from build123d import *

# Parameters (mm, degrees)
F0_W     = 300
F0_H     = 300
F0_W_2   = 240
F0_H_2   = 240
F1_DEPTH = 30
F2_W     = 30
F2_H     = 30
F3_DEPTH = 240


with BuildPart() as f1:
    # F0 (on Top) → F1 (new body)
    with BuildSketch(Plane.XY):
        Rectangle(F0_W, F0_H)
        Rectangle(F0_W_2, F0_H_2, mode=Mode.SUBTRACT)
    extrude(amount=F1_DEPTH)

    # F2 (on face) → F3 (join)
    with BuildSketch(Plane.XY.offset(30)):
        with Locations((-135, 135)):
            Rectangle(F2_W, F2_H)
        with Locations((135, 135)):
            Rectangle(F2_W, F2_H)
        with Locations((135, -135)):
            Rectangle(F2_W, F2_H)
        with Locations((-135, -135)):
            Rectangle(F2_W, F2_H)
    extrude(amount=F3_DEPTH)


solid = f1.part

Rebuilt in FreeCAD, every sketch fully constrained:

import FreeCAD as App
import Part
import Sketcher
from FreeCAD import Vector
Q = App.Units.Quantity


def add_polygon(sketch, points):
    """Adds a closed chain of lines whose ends are joined by coincident constraints."""
    first, n = sketch.GeometryCount, len(points)
    for a, b in zip(points, points[1:] + points[:1]):
        sketch.addGeometry(Part.LineSegment(App.Vector(*a, 0), App.Vector(*b, 0)), False)
    for i in range(n):
        sketch.addConstraint(Sketcher.Constraint("Coincident", first + i, 2, first + (i + 1) % n, 1))

doc = App.newDocument("Part")
body = doc.addObject("PartDesign::Body", "Body")

# Sketch on XY plane
sketch1 = doc.addObject("Sketcher::SketchObject", "Sketch")
body.addObject(sketch1)
sketch1.AttachmentSupport = (doc.XY_Plane, [""])
sketch1.MapMode = "FlatFace"
add_polygon(sketch1, [(-150, 150), (-150, -150), (150, -150), (150, 150)])  # lines 0-3
add_polygon(sketch1, [(120, -120), (-120, -120), (-120, 120), (120, 120)])  # lines 4-7
sketch1.addConstraint([
    Sketcher.Constraint("Vertical", 0),
    Sketcher.Constraint("Horizontal", 1),
    Sketcher.Constraint("Vertical", 2),
    Sketcher.Constraint("Horizontal", 3),
    Sketcher.Constraint("Horizontal", 4),
    Sketcher.Constraint("Vertical", 5),
    Sketcher.Constraint("Horizontal", 6),
    Sketcher.Constraint("Vertical", 7),
    Sketcher.Constraint("Symmetric", 0, 2, 2, 2, -1, 1),
    Sketcher.Constraint("Symmetric", 4, 2, 6, 2, -1, 1),
    Sketcher.Constraint("Equal", 3, 0),
    Sketcher.Constraint("Equal", 6, 5),
    Sketcher.Constraint("DistanceX", 1, 1, 1, 2, Q("300 mm")),
    Sketcher.Constraint("DistanceX", 4, 2, 4, 1, Q("240 mm")),
])
pad1 = doc.addObject("PartDesign::Pad", "Pad")
body.addObject(pad1)
pad1.Profile = sketch1
pad1.Length = 30

# Sketch on XY plane
sketch2 = doc.addObject("Sketcher::SketchObject", "Sketch001")
body.addObject(sketch2)
sketch2.AttachmentSupport = (doc.XY_Plane, [""])
sketch2.MapMode = "FlatFace"
sketch2.AttachmentOffset = App.Placement(Vector(0, 0, 30), App.Rotation())
add_polygon(sketch2, [(-150, 150), (-150, 120), (-120, 120), (-120, 150)])  # lines 0-3
add_polygon(sketch2, [(120, 150), (120, 120), (150, 120), (150, 150)])  # lines 4-7
add_polygon(sketch2, [(120, -120), (120, -150), (150, -150), (150, -120)])  # lines 8-11
add_polygon(sketch2, [(-150, -120), (-150, -150), (-120, -150), (-120, -120)])  # lines 12-15
sketch2.addConstraint([
    Sketcher.Constraint("Vertical", 0),
    Sketcher.Constraint("Horizontal", 1),
    Sketcher.Constraint("Vertical", 2),
    Sketcher.Constraint("Horizontal", 3),
    Sketcher.Constraint("Vertical", 4),
    Sketcher.Constraint("Horizontal", 5),
    Sketcher.Constraint("Vertical", 6),
    Sketcher.Constraint("Horizontal", 7),
    Sketcher.Constraint("Vertical", 8),
    Sketcher.Constraint("Horizontal", 9),
    Sketcher.Constraint("Vertical", 10),
    Sketcher.Constraint("Horizontal", 11),
    Sketcher.Constraint("Vertical", 12),
    Sketcher.Constraint("Horizontal", 13),
    Sketcher.Constraint("Vertical", 14),
    Sketcher.Constraint("Horizontal", 15),
    Sketcher.Constraint("Symmetric", 2, 2, 8, 2, -1, 1),
    Sketcher.Constraint("Symmetric", 0, 2, 10, 2, -1, 1),
    Sketcher.Constraint("Symmetric", 6, 2, 12, 2, -1, 1),
    Sketcher.Constraint("Symmetric", 4, 2, 14, 2, -1, 1),
    Sketcher.Constraint("Symmetric", 1, 2, 4, 2, -2),
    Sketcher.Constraint("Symmetric", 3, 2, 6, 2, -2),
    Sketcher.Constraint("Equal", 15, 0),
    Sketcher.Constraint("DistanceX", 1, 1, 1, 2, Q("30 mm")),
    Sketcher.Constraint("DistanceX", 0, 2, -1, 1, Q("150 mm")),
    Sketcher.Constraint("DistanceY", -1, 1, 0, 2, Q("120 mm")),
])
pad2 = doc.addObject("PartDesign::Pad", "Pad001")
body.addObject(pad2)
pad2.Profile = sketch2
pad2.Length = 240

doc.recompute()
